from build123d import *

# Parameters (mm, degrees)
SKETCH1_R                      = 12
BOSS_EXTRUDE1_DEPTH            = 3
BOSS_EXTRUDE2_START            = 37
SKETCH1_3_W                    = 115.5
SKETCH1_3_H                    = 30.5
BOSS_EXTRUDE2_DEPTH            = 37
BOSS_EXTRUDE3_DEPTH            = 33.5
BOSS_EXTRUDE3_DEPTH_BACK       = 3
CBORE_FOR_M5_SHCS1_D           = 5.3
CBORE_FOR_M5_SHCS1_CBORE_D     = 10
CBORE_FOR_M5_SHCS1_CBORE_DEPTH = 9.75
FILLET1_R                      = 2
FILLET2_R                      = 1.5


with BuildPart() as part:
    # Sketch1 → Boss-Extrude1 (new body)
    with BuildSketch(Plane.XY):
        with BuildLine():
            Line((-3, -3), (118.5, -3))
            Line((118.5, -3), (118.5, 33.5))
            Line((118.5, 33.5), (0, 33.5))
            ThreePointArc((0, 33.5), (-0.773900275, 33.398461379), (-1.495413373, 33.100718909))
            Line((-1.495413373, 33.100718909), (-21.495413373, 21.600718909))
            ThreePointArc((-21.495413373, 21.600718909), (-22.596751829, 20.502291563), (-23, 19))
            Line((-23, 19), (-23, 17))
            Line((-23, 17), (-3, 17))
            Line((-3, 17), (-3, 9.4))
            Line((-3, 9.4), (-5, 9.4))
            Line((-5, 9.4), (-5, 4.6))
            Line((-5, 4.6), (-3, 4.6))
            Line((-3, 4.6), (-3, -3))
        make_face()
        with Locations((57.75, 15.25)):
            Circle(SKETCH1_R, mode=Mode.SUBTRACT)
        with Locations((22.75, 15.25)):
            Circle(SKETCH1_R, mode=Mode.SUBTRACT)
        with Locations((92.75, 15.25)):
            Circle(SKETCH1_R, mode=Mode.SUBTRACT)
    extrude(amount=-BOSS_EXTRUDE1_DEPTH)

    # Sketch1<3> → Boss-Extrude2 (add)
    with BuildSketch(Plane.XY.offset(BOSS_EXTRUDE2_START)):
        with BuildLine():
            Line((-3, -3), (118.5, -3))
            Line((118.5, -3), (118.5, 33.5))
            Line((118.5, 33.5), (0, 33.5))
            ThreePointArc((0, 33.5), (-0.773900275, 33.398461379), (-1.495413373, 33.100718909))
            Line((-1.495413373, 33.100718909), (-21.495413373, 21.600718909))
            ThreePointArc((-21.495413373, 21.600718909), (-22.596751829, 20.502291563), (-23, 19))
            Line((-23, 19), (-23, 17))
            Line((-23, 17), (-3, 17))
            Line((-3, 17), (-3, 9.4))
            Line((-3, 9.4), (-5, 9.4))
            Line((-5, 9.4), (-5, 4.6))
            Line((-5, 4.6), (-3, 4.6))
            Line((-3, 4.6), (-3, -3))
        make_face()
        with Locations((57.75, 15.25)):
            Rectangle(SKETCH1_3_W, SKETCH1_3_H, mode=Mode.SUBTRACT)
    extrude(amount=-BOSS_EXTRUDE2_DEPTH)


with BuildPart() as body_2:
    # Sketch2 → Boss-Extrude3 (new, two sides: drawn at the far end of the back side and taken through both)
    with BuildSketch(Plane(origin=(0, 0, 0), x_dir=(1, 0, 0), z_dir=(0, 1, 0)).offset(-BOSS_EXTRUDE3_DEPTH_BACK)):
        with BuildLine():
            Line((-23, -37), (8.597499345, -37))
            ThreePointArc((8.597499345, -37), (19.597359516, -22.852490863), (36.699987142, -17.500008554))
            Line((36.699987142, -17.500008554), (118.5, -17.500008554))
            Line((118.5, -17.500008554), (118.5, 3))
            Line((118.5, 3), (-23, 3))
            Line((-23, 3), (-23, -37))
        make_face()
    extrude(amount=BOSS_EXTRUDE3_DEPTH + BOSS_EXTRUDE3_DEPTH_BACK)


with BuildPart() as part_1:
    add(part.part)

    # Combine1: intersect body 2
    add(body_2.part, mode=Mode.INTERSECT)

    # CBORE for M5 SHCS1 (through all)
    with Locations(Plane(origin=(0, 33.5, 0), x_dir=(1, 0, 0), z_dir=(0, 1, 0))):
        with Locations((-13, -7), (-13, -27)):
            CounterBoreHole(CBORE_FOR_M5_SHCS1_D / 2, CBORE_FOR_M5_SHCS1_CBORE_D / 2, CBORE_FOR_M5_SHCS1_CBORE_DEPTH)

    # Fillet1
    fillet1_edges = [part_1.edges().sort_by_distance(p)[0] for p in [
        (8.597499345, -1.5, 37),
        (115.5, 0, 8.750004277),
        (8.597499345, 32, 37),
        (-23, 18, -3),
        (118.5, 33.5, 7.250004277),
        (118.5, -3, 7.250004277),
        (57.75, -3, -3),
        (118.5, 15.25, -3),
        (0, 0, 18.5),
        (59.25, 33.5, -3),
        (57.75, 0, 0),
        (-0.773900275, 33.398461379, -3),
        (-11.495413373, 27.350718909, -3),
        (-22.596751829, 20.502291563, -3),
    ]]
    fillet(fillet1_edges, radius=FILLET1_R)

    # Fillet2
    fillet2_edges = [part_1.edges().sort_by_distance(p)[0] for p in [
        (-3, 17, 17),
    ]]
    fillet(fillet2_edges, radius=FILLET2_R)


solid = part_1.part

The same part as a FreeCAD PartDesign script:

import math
import FreeCAD as App
import Part
import Sketcher


def edges_at(feature, points):
    """Names of the edges that pass closest to the given points."""
    edges = feature.Shape.Edges
    near = lambda p: min(range(len(edges)), key=lambda i: edges[i].distToShape(Part.Vertex(*p))[0])
    return sorted({f"Edge{near(p) + 1}" for p in points})

doc = App.newDocument("Part")
body = doc.addObject("PartDesign::Body", "Body")

sketch1 = doc.addObject("Sketcher::SketchObject", "Sketch")
body.addObject(sketch1)
sketch1.AttachmentSupport = (doc.XY_Plane, [""])
sketch1.MapMode = "FlatFace"
sketch1.addGeometry(Part.LineSegment(App.Vector(-3, -3, 0), App.Vector(118.5, -3, 0)), False)
sketch1.addGeometry(Part.LineSegment(App.Vector(118.5, -3, 0), App.Vector(118.5, 33.5, 0)), False)
sketch1.addGeometry(Part.LineSegment(App.Vector(118.5, 33.5, 0), App.Vector(0, 33.5, 0)), False)
sketch1.addGeometry(Part.ArcOfCircle(Part.Circle(App.Vector(0, 30.5, 0), App.Vector(0, 0, 1), 3), math.radians(90), math.radians(119.898902)), False)
sketch1.addGeometry(Part.LineSegment(App.Vector(-1.495413, 33.100719, 0), App.Vector(-21.495413, 21.600719, 0)), False)
sketch1.addGeometry(Part.ArcOfCircle(Part.Circle(App.Vector(-20, 19, 0), App.Vector(0, 0, 1), 3), math.radians(119.898902), math.radians(180)), False)
sketch1.addGeometry(Part.LineSegment(App.Vector(-23, 19, 0), App.Vector(-23, 17, 0)), False)
sketch1.addGeometry(Part.LineSegment(App.Vector(-23, 17, 0), App.Vector(-3, 17, 0)), False)
sketch1.addGeometry(Part.LineSegment(App.Vector(-3, 17, 0), App.Vector(-3, 9.4, 0)), False)
sketch1.addGeometry(Part.LineSegment(App.Vector(-3, 9.4, 0), App.Vector(-5, 9.4, 0)), False)
sketch1.addGeometry(Part.LineSegment(App.Vector(-5, 9.4, 0), App.Vector(-5, 4.6, 0)), False)
sketch1.addGeometry(Part.LineSegment(App.Vector(-5, 4.6, 0), App.Vector(-3, 4.6, 0)), False)
sketch1.addGeometry(Part.LineSegment(App.Vector(-3, 4.6, 0), App.Vector(-3, -3, 0)), False)
sketch1.addGeometry(Part.Circle(App.Vector(22.75, 15.25, 0), App.Vector(0, 0, 1), 12), False)
sketch1.addGeometry(Part.Circle(App.Vector(57.75, 15.25, 0), App.Vector(0, 0, 1), 12), False)
sketch1.addGeometry(Part.Circle(App.Vector(92.75, 15.25, 0), App.Vector(0, 0, 1), 12), False)
sketch1.addConstraint(Sketcher.Constraint("Coincident", 0, 2, 1, 1))
sketch1.addConstraint(Sketcher.Constraint("Coincident", 1, 2, 2, 1))
sketch1.addConstraint(Sketcher.Constraint("Tangent", 2, 2, 3, 1))
sketch1.addConstraint(Sketcher.Constraint("Tangent", 3, 2, 4, 1))
sketch1.addConstraint(Sketcher.Constraint("Tangent", 4, 2, 5, 1))
sketch1.addConstraint(Sketcher.Constraint("Tangent", 5, 2, 6, 1))
sketch1.addConstraint(Sketcher.Constraint("Coincident", 6, 2, 7, 1))
sketch1.addConstraint(Sketcher.Constraint("Coincident", 7, 2, 8, 1))
sketch1.addConstraint(Sketcher.Constraint("Coincident", 8, 2, 9, 1))
sketch1.addConstraint(Sketcher.Constraint("Coincident", 9, 2, 10, 1))
sketch1.addConstraint(Sketcher.Constraint("Coincident", 10, 2, 11, 1))
sketch1.addConstraint(Sketcher.Constraint("Coincident", 11, 2, 12, 1))
sketch1.addConstraint(Sketcher.Constraint("Coincident", 12, 2, 0, 1))
sketch1.addConstraint(Sketcher.Constraint("Horizontal", 0))
sketch1.addConstraint(Sketcher.Constraint("Vertical", 1))
sketch1.addConstraint(Sketcher.Constraint("Horizontal", 2))
sketch1.addConstraint(Sketcher.Constraint("Vertical", 6))
sketch1.addConstraint(Sketcher.Constraint("Horizontal", 7))
sketch1.addConstraint(Sketcher.Constraint("Vertical", 8))
sketch1.addConstraint(Sketcher.Constraint("Horizontal", 9))
sketch1.addConstraint(Sketcher.Constraint("Vertical", 10))
sketch1.addConstraint(Sketcher.Constraint("Horizontal", 11))
sketch1.addConstraint(Sketcher.Constraint("Vertical", 12))
sketch1.addConstraint(Sketcher.Constraint("Equal", 3, 5))
sketch1.addConstraint(Sketcher.Constraint("Equal", 13, 14))
sketch1.addConstraint(Sketcher.Constraint("Equal", 14, 15))
sketch1.addConstraint(Sketcher.Constraint("PointOnObject", 3, 3, -2))
sketch1.addConstraint(Sketcher.Constraint("Horizontal", 13, 3, 14, 3))
sketch1.addConstraint(Sketcher.Constraint("Horizontal", 14, 3, 15, 3))
sketch1.addConstraint(Sketcher.Constraint("Vertical", 8, 2, 11, 2))
sketch1.addConstraint(Sketcher.Constraint("Equal", 11, 6))
sketch1.addConstraint(Sketcher.Constraint("Equal", 8, 12))
sketch1.addConstraint(Sketcher.Constraint("Diameter", 13, 24.0))
sketch1.addConstraint(Sketcher.Constraint("Radius", 3, 3.0))
sketch1.addConstraint(Sketcher.Constraint("DistanceX", 7, 1, 7, 2, 20.0))
sketch1.addConstraint(Sketcher.Constraint("DistanceX", 9, 2, 9, 1, 2.0))
sketch1.addConstraint(Sketcher.Constraint("DistanceX", 0, 1, 0, 2, 121.5))
sketch1.addConstraint(Sketcher.Constraint("DistanceX", 2, 2, 2, 1, 118.5))
sketch1.addConstraint(Sketcher.Constraint("DistanceY", 1, 1, 1, 2, 36.5))
sketch1.addConstraint(Sketcher.Constraint("DistanceY", 8, 2, 8, 1, 7.6))
sketch1.addConstraint(Sketcher.Constraint("DistanceY", 10, 2, 10, 1, 4.8))
sketch1.addConstraint(Sketcher.Constraint("DistanceY", -1, 1, 5, 3, 19.0))
sketch1.addConstraint(Sketcher.Constraint("DistanceX", 13, 3, 14, 3, 35.0))
sketch1.addConstraint(Sketcher.Constraint("DistanceX", 14, 3, 15, 3, 35.0))
sketch1.addConstraint(Sketcher.Constraint("DistanceX", -1, 1, 13, 3, 22.75))
sketch1.addConstraint(Sketcher.Constraint("DistanceY", -1, 1, 13, 3, 15.25))
pad1 = doc.addObject("PartDesign::Pad", "Pad")
body.addObject(pad1)
pad1.Profile = sketch1
pad1.Length = 3
pad1.Reversed = True

sketch2 = doc.addObject("Sketcher::SketchObject", "Sketch001")
body.addObject(sketch2)
sketch2.AttachmentSupport = (doc.XY_Plane, [""])
sketch2.MapMode = "FlatFace"
sketch2.AttachmentOffset = App.Placement(App.Vector(0, 0, 37), App.Rotation())
sketch2.addGeometry(Part.LineSegment(App.Vector(-3, -3, 0), App.Vector(118.5, -3, 0)), False)
sketch2.addGeometry(Part.LineSegment(App.Vector(118.5, -3, 0), App.Vector(118.5, 33.5, 0)), False)
sketch2.addGeometry(Part.LineSegment(App.Vector(118.5, 33.5, 0), App.Vector(0, 33.5, 0)), False)
sketch2.addGeometry(Part.ArcOfCircle(Part.Circle(App.Vector(0, 30.5, 0), App.Vector(0, 0, 1), 3), math.radians(90), math.radians(119.898902)), False)
sketch2.addGeometry(Part.LineSegment(App.Vector(-1.495413, 33.100719, 0), App.Vector(-21.495413, 21.600719, 0)), False)
sketch2.addGeometry(Part.ArcOfCircle(Part.Circle(App.Vector(-20, 19, 0), App.Vector(0, 0, 1), 3), math.radians(119.898902), math.radians(180)), False)
sketch2.addGeometry(Part.LineSegment(App.Vector(-23, 19, 0), App.Vector(-23, 17, 0)), False)
sketch2.addGeometry(Part.LineSegment(App.Vector(-23, 17, 0), App.Vector(-3, 17, 0)), False)
sketch2.addGeometry(Part.LineSegment(App.Vector(-3, 17, 0), App.Vector(-3, 9.4, 0)), False)
sketch2.addGeometry(Part.LineSegment(App.Vector(-3, 9.4, 0), App.Vector(-5, 9.4, 0)), False)
sketch2.addGeometry(Part.LineSegment(App.Vector(-5, 9.4, 0), App.Vector(-5, 4.6, 0)), False)
sketch2.addGeometry(Part.LineSegment(App.Vector(-5, 4.6, 0), App.Vector(-3, 4.6, 0)), False)
sketch2.addGeometry(Part.LineSegment(App.Vector(-3, 4.6, 0), App.Vector(-3, -3, 0)), False)
sketch2.addGeometry(Part.LineSegment(App.Vector(115.5, 0, 0), App.Vector(0, 0, 0)), False)
sketch2.addGeometry(Part.LineSegment(App.Vector(0, 0, 0), App.Vector(0, 30.5, 0)), False)
sketch2.addGeometry(Part.LineSegment(App.Vector(0, 30.5, 0), App.Vector(115.5, 30.5, 0)), False)
sketch2.addGeometry(Part.LineSegment(App.Vector(115.5, 30.5, 0), App.Vector(115.5, 0, 0)), False)
sketch2.addConstraint(Sketcher.Constraint("Coincident", 0, 2, 1, 1))
sketch2.addConstraint(Sketcher.Constraint("Coincident", 1, 2, 2, 1))
sketch2.addConstraint(Sketcher.Constraint("Tangent", 2, 2, 3, 1))
sketch2.addConstraint(Sketcher.Constraint("Tangent", 3, 2, 4, 1))
sketch2.addConstraint(Sketcher.Constraint("Tangent", 4, 2, 5, 1))
sketch2.addConstraint(Sketcher.Constraint("Tangent", 5, 2, 6, 1))
sketch2.addConstraint(Sketcher.Constraint("Coincident", 6, 2, 7, 1))
sketch2.addConstraint(Sketcher.Constraint("Coincident", 7, 2, 8, 1))
sketch2.addConstraint(Sketcher.Constraint("Coincident", 8, 2, 9, 1))
sketch2.addConstraint(Sketcher.Constraint("Coincident", 9, 2, 10, 1))
sketch2.addConstraint(Sketcher.Constraint("Coincident", 10, 2, 11, 1))
sketch2.addConstraint(Sketcher.Constraint("Coincident", 11, 2, 12, 1))
sketch2.addConstraint(Sketcher.Constraint("Coincident", 12, 2, 0, 1))
sketch2.addConstraint(Sketcher.Constraint("Coincident", 13, 2, 14, 1))
sketch2.addConstraint(Sketcher.Constraint("Coincident", 14, 2, 15, 1))
sketch2.addConstraint(Sketcher.Constraint("Coincident", 15, 2, 16, 1))
sketch2.addConstraint(Sketcher.Constraint("Coincident", 16, 2, 13, 1))
sketch2.addConstraint(Sketcher.Constraint("Horizontal", 0))
sketch2.addConstraint(Sketcher.Constraint("Vertical", 1))
sketch2.addConstraint(Sketcher.Constraint("Horizontal", 2))
sketch2.addConstraint(Sketcher.Constraint("Vertical", 6))
sketch2.addConstraint(Sketcher.Constraint("Horizontal", 7))
sketch2.addConstraint(Sketcher.Constraint("Vertical", 8))
sketch2.addConstraint(Sketcher.Constraint("Horizontal", 9))
sketch2.addConstraint(Sketcher.Constraint("Vertical", 10))
sketch2.addConstraint(Sketcher.Constraint("Horizontal", 11))
sketch2.addConstraint(Sketcher.Constraint("Vertical", 12))
sketch2.addConstraint(Sketcher.Constraint("Horizontal", 13))
sketch2.addConstraint(Sketcher.Constraint("Vertical", 14))
sketch2.addConstraint(Sketcher.Constraint("Horizontal", 15))
sketch2.addConstraint(Sketcher.Constraint("Vertical", 16))
sketch2.addConstraint(Sketcher.Constraint("Coincident", 13, 2, -1, 1))
sketch2.addConstraint(Sketcher.Constraint("Coincident", 14, 2, 3, 3))
sketch2.addConstraint(Sketcher.Constraint("Equal", 3, 5))
sketch2.addConstraint(Sketcher.Constraint("Vertical", 8, 2, 11, 2))
sketch2.addConstraint(Sketcher.Constraint("Equal", 11, 6))
sketch2.addConstraint(Sketcher.Constraint("Equal", 8, 12))
sketch2.addConstraint(Sketcher.Constraint("Radius", 3, 3.0))
sketch2.addConstraint(Sketcher.Constraint("DistanceX", 7, 1, 7, 2, 20.0))
sketch2.addConstraint(Sketcher.Constraint("DistanceX", 9, 2, 9, 1, 2.0))
sketch2.addConstraint(Sketcher.Constraint("DistanceX", 0, 1, 0, 2, 121.5))
sketch2.addConstraint(Sketcher.Constraint("DistanceX", 2, 2, 2, 1, 118.5))
sketch2.addConstraint(Sketcher.Constraint("DistanceX", 13, 2, 13, 1, 115.5))
sketch2.addConstraint(Sketcher.Constraint("DistanceY", 1, 1, 1, 2, 36.5))
sketch2.addConstraint(Sketcher.Constraint("DistanceY", 8, 2, 8, 1, 7.6))
sketch2.addConstraint(Sketcher.Constraint("DistanceY", 10, 2, 10, 1, 4.8))
sketch2.addConstraint(Sketcher.Constraint("DistanceY", 14, 1, 14, 2, 30.5))
pad2 = doc.addObject("PartDesign::Pad", "Pad001")
body.addObject(pad2)
pad2.Profile = sketch2
pad2.Length = 37
pad2.Reversed = True
body2 = doc.addObject("PartDesign::Body", "Body001")

sketch3 = doc.addObject("Sketcher::SketchObject", "Sketch002")
body2.addObject(sketch3)
sketch3.AttachmentSupport = (doc.getObject("XZ_Plane001"), [""])
sketch3.MapMode = "FlatFace"
sketch3.addGeometry(Part.LineSegment(App.Vector(-23, 37, 0), App.Vector(8.597499, 37, 0)), False)
sketch3.addGeometry(Part.ArcOfCircle(Part.Circle(App.Vector(36.699987, 47.500009, 0), App.Vector(0, 0, 1), 30), math.radians(-159.512667), math.radians(-90)), False)
sketch3.addGeometry(Part.LineSegment(App.Vector(36.699987, 17.500009, 0), App.Vector(118.5, 17.500009, 0)), False)
sketch3.addGeometry(Part.LineSegment(App.Vector(118.5, 17.500009, 0), App.Vector(118.5, -3, 0)), False)
sketch3.addGeometry(Part.LineSegment(App.Vector(118.5, -3, 0), App.Vector(-23, -3, 0)), False)
sketch3.addGeometry(Part.LineSegment(App.Vector(-23, -3, 0), App.Vector(-23, 37, 0)), False)
sketch3.addConstraint(Sketcher.Constraint("Coincident", 0, 2, 1, 1))
sketch3.addConstraint(Sketcher.Constraint("Tangent", 1, 2, 2, 1))
sketch3.addConstraint(Sketcher.Constraint("Coincident", 2, 2, 3, 1))
sketch3.addConstraint(Sketcher.Constraint("Coincident", 3, 2, 4, 1))
sketch3.addConstraint(Sketcher.Constraint("Coincident", 4, 2, 5, 1))
sketch3.addConstraint(Sketcher.Constraint("Coincident", 5, 2, 0, 1))
sketch3.addConstraint(Sketcher.Constraint("Horizontal", 0))
sketch3.addConstraint(Sketcher.Constraint("Horizontal", 2))
sketch3.addConstraint(Sketcher.Constraint("Vertical", 3))
sketch3.addConstraint(Sketcher.Constraint("Horizontal", 4))
sketch3.addConstraint(Sketcher.Constraint("Vertical", 5))
sketch3.addConstraint(Sketcher.Constraint("Radius", 1, 30.0))
sketch3.addConstraint(Sketcher.Constraint("DistanceY", 5, 1, 5, 2, 40.0))
sketch3.addConstraint(Sketcher.Constraint("DistanceX", 4, 2, 4, 1, 141.5))
sketch3.addConstraint(Sketcher.Constraint("DistanceY", -1, 1, 0, 2, 37.0))
sketch3.addConstraint(Sketcher.Constraint("DistanceX", 4, 2, -1, 1, 23.0))
sketch3.addConstraint(Sketcher.Constraint("DistanceX", 0, 1, 0, 2, 31.597499))
sketch3.addConstraint(Sketcher.Constraint("DistanceY", 3, 2, 3, 1, 20.500009))
pad3 = doc.addObject("PartDesign::Pad", "Pad002")
body2.addObject(pad3)
pad3.Profile = sketch3
pad3.Type = "TwoLengths"
pad3.Length = 33.5
pad3.Length2 = 3
pad3.Reversed = True
doc.recompute()

boolean = doc.addObject("PartDesign::Boolean", "Boolean")
body.addObject(boolean)
boolean.Type = "Common"
boolean.addObjects([body2])

sketch4 = doc.addObject("Sketcher::SketchObject", "Sketch003")
body.addObject(sketch4)
sketch4.AttachmentSupport = (doc.XZ_Plane, [""])
sketch4.MapMode = "FlatFace"
sketch4.AttachmentOffset = App.Placement(App.Vector(0, 0, -33.5), App.Rotation())
sketch4.addGeometry(Part.Circle(App.Vector(-13, 7, 0), App.Vector(0, 0, 1), 2.65), False)
sketch4.addGeometry(Part.Circle(App.Vector(-13, 27, 0), App.Vector(0, 0, 1), 2.65), False)
sketch4.addConstraint(Sketcher.Constraint("Equal", 0, 1))
sketch4.addConstraint(Sketcher.Constraint("Vertical", 0, 3, 1, 3))
sketch4.addConstraint(Sketcher.Constraint("Diameter", 0, 5.3))
sketch4.addConstraint(Sketcher.Constraint("DistanceX", 0, 3, -1, 1, 13.0))
sketch4.addConstraint(Sketcher.Constraint("DistanceY", -1, 1, 0, 3, 7.0))
sketch4.addConstraint(Sketcher.Constraint("DistanceY", -1, 1, 1, 3, 27.0))
doc.recompute()
hole = doc.addObject("PartDesign::Hole", "Hole")
body.addObject(hole)
hole.Profile = sketch4
hole.ThreadType = "None"
hole.Diameter = 5.3
hole.DepthType = "ThroughAll"
hole.HoleCutType = "Counterbore"
hole.HoleCutDiameter = 10
hole.HoleCutDepth = 9.75
hole.Reversed = True
doc.recompute()

fillet = doc.addObject("PartDesign::Fillet", "Fillet")
body.addObject(fillet)
fillet.Base = (hole, edges_at(hole, [
    (8.597, -1.5, 37),
    (115.5, 0, 8.75),
    (8.597, 32, 37),
    (-23, 18, -3),
    (118.5, 33.5, 7.25),
    (118.5, -3, 7.25),
    (57.75, -3, -3),
    (118.5, 15.25, -3),
    (0, 0, 18.5),
    (59.25, 33.5, -3),
    (57.75, 0, 0),
    (-0.774, 33.398, -3),
    (-11.495, 27.351, -3),
    (-22.597, 20.502, -3),
]))
fillet.Radius = 2
doc.recompute()

fillet2 = doc.addObject("PartDesign::Fillet", "Fillet001")
body.addObject(fillet2)
fillet2.Base = (fillet, edges_at(fillet, [(-3, 17, 17)]))
fillet2.Radius = 1.5

doc.recompute()
